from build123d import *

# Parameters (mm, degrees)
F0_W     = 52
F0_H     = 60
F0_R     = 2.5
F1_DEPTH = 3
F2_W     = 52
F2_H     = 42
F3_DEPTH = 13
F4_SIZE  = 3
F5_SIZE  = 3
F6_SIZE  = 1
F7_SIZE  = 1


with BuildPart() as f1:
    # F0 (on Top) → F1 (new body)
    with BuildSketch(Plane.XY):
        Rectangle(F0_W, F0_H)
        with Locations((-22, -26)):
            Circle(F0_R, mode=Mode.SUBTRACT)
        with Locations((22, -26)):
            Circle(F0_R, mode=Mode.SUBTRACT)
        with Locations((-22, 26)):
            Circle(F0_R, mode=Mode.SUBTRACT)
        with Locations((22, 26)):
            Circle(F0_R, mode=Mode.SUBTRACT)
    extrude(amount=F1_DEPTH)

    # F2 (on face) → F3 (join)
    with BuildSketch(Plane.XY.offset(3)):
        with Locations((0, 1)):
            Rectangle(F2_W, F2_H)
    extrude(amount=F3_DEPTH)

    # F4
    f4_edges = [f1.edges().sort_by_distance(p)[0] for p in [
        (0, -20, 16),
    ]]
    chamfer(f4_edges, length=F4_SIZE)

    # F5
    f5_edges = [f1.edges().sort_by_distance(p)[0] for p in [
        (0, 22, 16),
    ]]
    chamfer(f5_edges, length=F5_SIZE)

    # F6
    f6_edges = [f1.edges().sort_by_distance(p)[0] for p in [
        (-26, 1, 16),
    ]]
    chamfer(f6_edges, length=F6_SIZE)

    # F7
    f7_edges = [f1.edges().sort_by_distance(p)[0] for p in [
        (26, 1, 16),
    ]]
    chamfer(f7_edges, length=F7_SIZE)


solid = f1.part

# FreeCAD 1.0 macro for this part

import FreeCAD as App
import Part
import Sketcher
Q = App.Units.Quantity


def edges_at(feature, points):
    """Names of the edges that pass closest to the given points."""
    edges = feature.Shape.Edges
    near = lambda p: min(range(len(edges)), key=lambda i: edges[i].distToShape(Part.Vertex(*p))[0])
    return sorted({f"Edge{near(p) + 1}" for p in points})


def add_polygon(sketch, points):
    """Adds a closed chain of lines whose ends are joined by coincident constraints."""
    first, n = sketch.GeometryCount, len(points)
    for a, b in zip(points, points[1:] + points[:1]):
        sketch.addGeometry(Part.LineSegment(App.Vector(*a, 0), App.Vector(*b, 0)), False)
    for i in range(n):
        sketch.addConstraint(Sketcher.Constraint("Coincident", first + i, 2, first + (i + 1) % n, 1))

doc = App.newDocument("Part")
params = doc.addObject("Spreadsheet::Sheet", "Params")
for row, (alias, value) in enumerate([
    ("sketch1_diameter", "5 mm"),
    ("sketch1_width", "52 mm"),
    ("sketch1_height", "60 mm"),
    ("pad1_length", "3 mm"),
    ("sketch2_width", "52 mm"),
    ("sketch2_height", "42 mm"),
    ("pad2_length", "13 mm"),
    ("chamfer_size", "3 mm"),
    ("chamfer2_size", "3 mm"),
    ("chamfer3_size", "1 mm"),
    ("chamfer4_size", "1 mm"),
], start=1):
    params.set(f"A{row}", alias)
    params.set(f"B{row}", "=" + value)
    params.setAlias(f"B{row}", alias)

body = doc.addObject("PartDesign::Body", "Body")

# Sketch on XY plane
sketch1 = body.newObject("Sketcher::SketchObject", "Sketch")
sketch1.AttachmentSupport = (doc.getObject("XY_Plane"), [""])
sketch1.MapMode = "FlatFace"
add_polygon(sketch1, [(-26, 30), (-26, -30), (26, -30), (26, 30)])  # lines 0-3
sketch1.addGeometry(Part.Circle(App.Vector(-22, -26, 0), App.Vector(0, 0, 1), 2.5), False)  # 4
sketch1.addGeometry(Part.Circle(App.Vector(22, -26, 0), App.Vector(0, 0, 1), 2.5), False)  # 5
sketch1.addGeometry(Part.Circle(App.Vector(-22, 26, 0), App.Vector(0, 0, 1), 2.5), False)  # 6
sketch1.addGeometry(Part.Circle(App.Vector(22, 26, 0), App.Vector(0, 0, 1), 2.5), False)  # 7
sketch1.addConstraint(Sketcher.Constraint("Vertical", 0))
sketch1.addConstraint(Sketcher.Constraint("Horizontal", 1))
sketch1.addConstraint(Sketcher.Constraint("Vertical", 2))
sketch1.addConstraint(Sketcher.Constraint("Horizontal", 3))
sketch1.addConstraint(Sketcher.Constraint("Equal", 4, 5))
sketch1.addConstraint(Sketcher.Constraint("Equal", 5, 6))
sketch1.addConstraint(Sketcher.Constraint("Equal", 6, 7))
sketch1.addConstraint(Sketcher.Constraint("Symmetric", 5, 3, 6, 3, -1, 1))
sketch1.addConstraint(Sketcher.Constraint("Symmetric", 4, 3, 7, 3, -1, 1))
sketch1.addConstraint(Sketcher.Constraint("Symmetric", 0, 2, 2, 2, -1, 1))
sketch1.addConstraint(Sketcher.Constraint("Symmetric", 4, 3, 5, 3, -2))
sketch1.addConstraint(Sketcher.Constraint("Diameter", 4, Q("5 mm")))
sketch1.addConstraint(Sketcher.Constraint("DistanceX", 1, 1, 1, 2, Q("52 mm")))
sketch1.addConstraint(Sketcher.Constraint("DistanceY", 0, 2, 0, 1, Q("60 mm")))
sketch1.addConstraint(Sketcher.Constraint("DistanceX", 4, 3, -1, 1, Q("22 mm")))
sketch1.addConstraint(Sketcher.Constraint("DistanceY", 4, 3, -1, 1, Q("26 mm")))
sketch1.setExpression("Constraints[15]", "Params.sketch1_diameter")
sketch1.setExpression("Constraints[16]", "Params.sketch1_width")
sketch1.setExpression("Constraints[17]", "Params.sketch1_height")
pad1 = body.newObject("PartDesign::Pad", "Pad")
pad1.Profile = sketch1
pad1.setExpression("Length", "Params.pad1_length")

# Sketch on XY plane
sketch2 = body.newObject("Sketcher::SketchObject", "Sketch001")
sketch2.AttachmentSupport = (doc.getObject("XY_Plane"), [""])
sketch2.MapMode = "FlatFace"
sketch2.AttachmentOffset = App.Placement(App.Vector(0, 0, 3), App.Rotation())
add_polygon(sketch2, [(-26, 22), (-26, -20), (26, -20), (26, 22)])  # lines 0-3
sketch2.addConstraint(Sketcher.Constraint("Vertical", 0))
sketch2.addConstraint(Sketcher.Constraint("Horizontal", 1))
sketch2.addConstraint(Sketcher.Constraint("Vertical", 2))
sketch2.addConstraint(Sketcher.Constraint("Horizontal", 3))
sketch2.addConstraint(Sketcher.Constraint("DistanceX", 1, 1, 1, 2, Q("52 mm")))
sketch2.addConstraint(Sketcher.Constraint("DistanceY", 0, 2, 0, 1, Q("42 mm")))
sketch2.addConstraint(Sketcher.Constraint("DistanceX", 0, 2, -1, 1, Q("26 mm")))
sketch2.addConstraint(Sketcher.Constraint("DistanceY", 0, 2, -1, 1, Q("20 mm")))
sketch2.setExpression("Constraints[8]", "Params.sketch2_width")
sketch2.setExpression("Constraints[9]", "Params.sketch2_height")
pad2 = body.newObject("PartDesign::Pad", "Pad001")
pad2.Profile = sketch2
pad2.setExpression("Length", "Params.pad2_length")
doc.recompute()

chamfer = body.newObject("PartDesign::Chamfer", "Chamfer")
chamfer.Base = (pad2, edges_at(pad2, [(0, -20, 16)]))
chamfer.setExpression("Size", "Params.chamfer_size")
doc.recompute()

chamfer2 = body.newObject("PartDesign::Chamfer", "Chamfer001")
chamfer2.Base = (chamfer, edges_at(chamfer, [(0, 22, 16)]))
chamfer2.setExpression("Size", "Params.chamfer2_size")
doc.recompute()

chamfer3 = body.newObject("PartDesign::Chamfer", "Chamfer002")
chamfer3.Base = (chamfer2, edges_at(chamfer2, [(-26, 1, 16)]))
chamfer3.setExpression("Size", "Params.chamfer3_size")
doc.recompute()

chamfer4 = body.newObject("PartDesign::Chamfer", "Chamfer003")
chamfer4.Base = (chamfer3, edges_at(chamfer3, [(26, 1, 16)]))
chamfer4.setExpression("Size", "Params.chamfer4_size")

doc.recompute()
